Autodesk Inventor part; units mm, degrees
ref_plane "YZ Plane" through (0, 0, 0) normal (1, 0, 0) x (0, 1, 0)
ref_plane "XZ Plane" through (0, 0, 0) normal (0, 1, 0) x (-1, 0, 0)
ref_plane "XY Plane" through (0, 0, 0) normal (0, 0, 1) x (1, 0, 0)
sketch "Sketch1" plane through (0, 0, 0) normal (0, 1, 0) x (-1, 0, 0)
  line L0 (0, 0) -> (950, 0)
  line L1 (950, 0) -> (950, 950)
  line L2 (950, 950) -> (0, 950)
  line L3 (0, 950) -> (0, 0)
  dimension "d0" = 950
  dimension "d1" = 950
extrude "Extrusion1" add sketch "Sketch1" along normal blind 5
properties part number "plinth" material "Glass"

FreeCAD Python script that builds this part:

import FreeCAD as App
import Part
import Sketcher

doc = App.newDocument("Part")
params = doc.addObject("Spreadsheet::Sheet", "Params")
for row, (alias, value) in enumerate([
    ("sketch1_width", "950 mm"),
    ("pad1_length", "5 mm"),
], start=1):
    params.set(f"A{row}", alias)
    params.set(f"B{row}", "=" + value)
    params.setAlias(f"B{row}", alias)

body = doc.addObject("PartDesign::Body", "Body")

# Sketch on XZ plane
sketch1 = body.newObject("Sketcher::SketchObject", "Sketch")
sketch1.AttachmentSupport = (doc.getObject("XZ_Plane"), [""])
sketch1.MapMode = "FlatFace"
sketch1.addGeometry(Part.LineSegment(App.Vector(0, 950, 0), App.Vector(0, 0, 0)), False)
sketch1.addGeometry(Part.LineSegment(App.Vector(0, 0, 0), App.Vector(-950, 0, 0)), False)
sketch1.addGeometry(Part.LineSegment(App.Vector(-950, 0, 0), App.Vector(-950, 950, 0)), False)
sketch1.addGeometry(Part.LineSegment(App.Vector(-950, 950, 0), App.Vector(0, 950, 0)), False)
sketch1.addConstraint(Sketcher.Constraint("Coincident", 0, 2, 1, 1))
sketch1.addConstraint(Sketcher.Constraint("Coincident", 1, 2, 2, 1))
sketch1.addConstraint(Sketcher.Constraint("Coincident", 2, 2, 3, 1))
sketch1.addConstraint(Sketcher.Constraint("Coincident", 3, 2, 0, 1))
sketch1.addConstraint(Sketcher.Constraint("Vertical", 0))
sketch1.addConstraint(Sketcher.Constraint("Horizontal", 1))
sketch1.addConstraint(Sketcher.Constraint("Vertical", 2))
sketch1.addConstraint(Sketcher.Constraint("Horizontal", 3))
sketch1.addConstraint(Sketcher.Constraint("Coincident", 0, 2, -1, 1))
sketch1.addConstraint(Sketcher.Constraint("Equal", 3, 0))
sketch1.addConstraint(Sketcher.Constraint("DistanceX", 1, 2, 1, 1, 950.0))
sketch1.setExpression("Constraints[10]", "Params.sketch1_width")
pad1 = body.newObject("PartDesign::Pad", "Pad")
pad1.Profile = sketch1
pad1.setExpression("Length", "Params.pad1_length")
pad1.Reversed = True

doc.recompute()
